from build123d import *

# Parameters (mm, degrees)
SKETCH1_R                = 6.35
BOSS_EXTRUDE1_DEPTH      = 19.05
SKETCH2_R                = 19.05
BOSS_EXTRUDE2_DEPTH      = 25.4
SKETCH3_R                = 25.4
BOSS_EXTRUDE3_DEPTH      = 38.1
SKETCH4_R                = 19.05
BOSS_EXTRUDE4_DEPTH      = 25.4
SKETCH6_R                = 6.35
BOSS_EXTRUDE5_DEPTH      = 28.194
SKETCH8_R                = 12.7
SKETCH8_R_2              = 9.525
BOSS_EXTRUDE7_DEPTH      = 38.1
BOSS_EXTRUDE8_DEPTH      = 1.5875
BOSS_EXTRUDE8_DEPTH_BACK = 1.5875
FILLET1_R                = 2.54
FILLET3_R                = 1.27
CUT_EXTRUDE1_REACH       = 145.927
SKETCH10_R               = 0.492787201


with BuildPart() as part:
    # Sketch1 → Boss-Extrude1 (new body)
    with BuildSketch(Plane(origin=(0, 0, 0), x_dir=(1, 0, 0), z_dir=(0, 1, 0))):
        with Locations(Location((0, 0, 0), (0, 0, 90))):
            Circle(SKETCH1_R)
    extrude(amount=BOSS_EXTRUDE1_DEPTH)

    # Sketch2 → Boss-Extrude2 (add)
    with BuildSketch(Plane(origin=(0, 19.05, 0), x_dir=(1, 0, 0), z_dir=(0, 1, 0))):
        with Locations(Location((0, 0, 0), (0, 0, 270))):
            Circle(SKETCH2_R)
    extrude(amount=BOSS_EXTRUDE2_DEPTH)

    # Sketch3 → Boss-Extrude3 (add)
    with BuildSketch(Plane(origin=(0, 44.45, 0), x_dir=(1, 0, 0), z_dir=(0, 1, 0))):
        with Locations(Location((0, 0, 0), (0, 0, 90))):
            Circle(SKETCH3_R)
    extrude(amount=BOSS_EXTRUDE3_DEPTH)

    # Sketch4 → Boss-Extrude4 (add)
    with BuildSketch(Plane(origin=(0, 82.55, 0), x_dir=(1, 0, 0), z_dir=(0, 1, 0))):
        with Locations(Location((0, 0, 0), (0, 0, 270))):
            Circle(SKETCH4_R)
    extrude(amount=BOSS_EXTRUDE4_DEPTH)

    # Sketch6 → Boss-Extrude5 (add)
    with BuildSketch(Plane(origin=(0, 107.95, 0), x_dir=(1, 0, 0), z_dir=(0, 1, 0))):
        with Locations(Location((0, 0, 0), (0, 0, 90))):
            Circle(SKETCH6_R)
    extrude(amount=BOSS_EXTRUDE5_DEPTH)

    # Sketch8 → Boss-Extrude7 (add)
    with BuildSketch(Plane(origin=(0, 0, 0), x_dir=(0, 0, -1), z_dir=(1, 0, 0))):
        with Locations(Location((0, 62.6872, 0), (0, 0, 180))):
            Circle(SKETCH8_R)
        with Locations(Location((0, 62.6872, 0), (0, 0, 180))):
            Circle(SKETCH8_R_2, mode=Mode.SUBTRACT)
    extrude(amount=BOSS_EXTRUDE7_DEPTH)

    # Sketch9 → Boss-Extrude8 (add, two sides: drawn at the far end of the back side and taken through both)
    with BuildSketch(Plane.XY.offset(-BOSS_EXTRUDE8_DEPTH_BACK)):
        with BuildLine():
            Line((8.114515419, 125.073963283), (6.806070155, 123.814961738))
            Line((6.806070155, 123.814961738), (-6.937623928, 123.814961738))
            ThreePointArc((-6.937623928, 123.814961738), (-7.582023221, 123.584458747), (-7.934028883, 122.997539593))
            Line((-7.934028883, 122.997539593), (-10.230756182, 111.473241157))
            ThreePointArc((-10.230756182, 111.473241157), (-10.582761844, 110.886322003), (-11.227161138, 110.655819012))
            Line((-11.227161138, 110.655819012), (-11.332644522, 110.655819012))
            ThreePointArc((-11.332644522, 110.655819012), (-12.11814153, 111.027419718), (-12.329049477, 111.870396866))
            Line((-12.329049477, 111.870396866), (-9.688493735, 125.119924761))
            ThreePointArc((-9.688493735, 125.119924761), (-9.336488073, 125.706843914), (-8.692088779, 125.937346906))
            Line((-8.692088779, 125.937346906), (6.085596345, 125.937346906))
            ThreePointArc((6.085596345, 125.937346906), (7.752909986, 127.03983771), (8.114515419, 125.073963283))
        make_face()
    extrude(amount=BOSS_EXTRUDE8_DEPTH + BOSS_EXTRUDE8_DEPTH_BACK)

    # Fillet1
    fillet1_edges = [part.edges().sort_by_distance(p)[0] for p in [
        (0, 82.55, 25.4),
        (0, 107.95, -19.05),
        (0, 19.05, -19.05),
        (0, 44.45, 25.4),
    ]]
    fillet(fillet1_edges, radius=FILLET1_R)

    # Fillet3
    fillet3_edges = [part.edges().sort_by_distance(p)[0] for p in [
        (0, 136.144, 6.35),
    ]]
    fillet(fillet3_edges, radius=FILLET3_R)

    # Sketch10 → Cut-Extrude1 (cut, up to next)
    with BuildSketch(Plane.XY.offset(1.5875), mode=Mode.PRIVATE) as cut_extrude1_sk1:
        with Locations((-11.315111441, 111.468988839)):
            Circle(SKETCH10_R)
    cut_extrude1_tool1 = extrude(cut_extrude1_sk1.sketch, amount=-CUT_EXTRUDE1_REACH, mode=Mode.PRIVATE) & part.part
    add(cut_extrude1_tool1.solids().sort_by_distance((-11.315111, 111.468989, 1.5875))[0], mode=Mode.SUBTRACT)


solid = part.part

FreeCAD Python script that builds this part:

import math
import FreeCAD as App
import Part
import Sketcher
from FreeCAD import Vector
Q = App.Units.Quantity


def edges_at(feature, points):
    """Names of the edges that pass closest to the given points."""
    edges = feature.Shape.Edges
    near = lambda p: min(range(len(edges)), key=lambda i: edges[i].distToShape(Part.Vertex(*p))[0])
    return sorted({f"Edge{near(p) + 1}" for p in points})

doc = App.newDocument("Part")
body = doc.addObject("PartDesign::Body", "Body")

# Sketch on XZ plane
sketch1 = body.newObject("Sketcher::SketchObject", "Sketch")
sketch1.AttachmentSupport = (doc.getObject("XZ_Plane"), [""])
sketch1.MapMode = "FlatFace"
sketch1.addGeometry(Part.Circle(Vector(0, 0, 0), Vector(0, 0, 1), 6), False)
sketch1.addConstraint([
    Sketcher.Constraint("Coincident", 0, 3, -1, 1),
    Sketcher.Constraint("Diameter", 0, Q("0.5 in")),
])
pad1 = body.newObject("PartDesign::Pad", "Pad")
pad1.Profile = sketch1
pad1.Length = Q("0.75 in")
pad1.Reversed = True

# Sketch on XZ plane
sketch2 = body.newObject("Sketcher::SketchObject", "Sketch001")
sketch2.AttachmentSupport = (doc.getObject("XZ_Plane"), [""])
sketch2.MapMode = "FlatFace"
sketch2.AttachmentOffset = App.Placement(Vector(0, 0, -0.75 * 25.4), App.Rotation())
sketch2.addGeometry(Part.Circle(Vector(0, 0, 0), Vector(0, 0, 1), 19), False)
sketch2.addConstraint([
    Sketcher.Constraint("Coincident", 0, 3, -1, 1),
    Sketcher.Constraint("Diameter", 0, Q("1.5 in")),
])
pad2 = body.newObject("PartDesign::Pad", "Pad001")
pad2.Profile = sketch2
pad2.Length = Q("1 in")
pad2.Reversed = True

# Sketch on XZ plane
sketch3 = body.newObject("Sketcher::SketchObject", "Sketch002")
sketch3.AttachmentSupport = (doc.getObject("XZ_Plane"), [""])
sketch3.MapMode = "FlatFace"
sketch3.AttachmentOffset = App.Placement(Vector(0, 0, -1.75 * 25.4), App.Rotation())
sketch3.addGeometry(Part.Circle(Vector(0, 0, 0), Vector(0, 0, 1), 25), False)
sketch3.addConstraint([
    Sketcher.Constraint("Coincident", 0, 3, -1, 1),
    Sketcher.Constraint("Diameter", 0, Q("2 in")),
])
pad3 = body.newObject("PartDesign::Pad", "Pad002")
pad3.Profile = sketch3
pad3.Length = Q("1.5 in")
pad3.Reversed = True

# Sketch on XZ plane
sketch4 = body.newObject("Sketcher::SketchObject", "Sketch003")
sketch4.AttachmentSupport = (doc.getObject("XZ_Plane"), [""])
sketch4.MapMode = "FlatFace"
sketch4.AttachmentOffset = App.Placement(Vector(0, 0, -3.25 * 25.4), App.Rotation())
sketch4.addGeometry(Part.Circle(Vector(0, 0, 0), Vector(0, 0, 1), 19), False)
sketch4.addConstraint([
    Sketcher.Constraint("Coincident", 0, 3, -1, 1),
    Sketcher.Constraint("Diameter", 0, Q("1.5 in")),
])
pad4 = body.newObject("PartDesign::Pad", "Pad003")
pad4.Profile = sketch4
pad4.Length = Q("1 in")
pad4.Reversed = True

# Sketch on XZ plane
sketch5 = body.newObject("Sketcher::SketchObject", "Sketch004")
sketch5.AttachmentSupport = (doc.getObject("XZ_Plane"), [""])
sketch5.MapMode = "FlatFace"
sketch5.AttachmentOffset = App.Placement(Vector(0, 0, -4.25 * 25.4), App.Rotation())
sketch5.addGeometry(Part.Circle(Vector(0, 0, 0), Vector(0, 0, 1), 6), False)
sketch5.addConstraint([
    Sketcher.Constraint("Coincident", 0, 3, -1, 1),
    Sketcher.Constraint("Diameter", 0, Q("0.5 in")),
])
pad5 = body.newObject("PartDesign::Pad", "Pad004")
pad5.Profile = sketch5
pad5.Length = Q("1.11 in")
pad5.Reversed = True

# Sketch on YZ plane
sketch6 = body.newObject("Sketcher::SketchObject", "Sketch005")
sketch6.AttachmentSupport = (doc.getObject("YZ_Plane"), [""])
sketch6.MapMode = "FlatFace"
sketch6.addGeometry([
    Part.Circle(Vector(63, 0, 0), Vector(0, 0, 1), 13),
    Part.Circle(Vector(63, 0, 0), Vector(0, 0, 1), 10),
], False)
sketch6.addConstraint([
    Sketcher.Constraint("Coincident", 1, 3, 0, 3),
    Sketcher.Constraint("PointOnObject", 0, 3, -1),
    Sketcher.Constraint("Diameter", 0, Q("1 in")),
    Sketcher.Constraint("Diameter", 1, Q("0.75 in")),
    Sketcher.Constraint("DistanceX", -1, 1, 0, 3, Q("2.468 in")),
])
pad6 = body.newObject("PartDesign::Pad", "Pad005")
pad6.Profile = sketch6
pad6.Length = Q("1.5 in")

# Sketch on XY plane
sketch7 = body.newObject("Sketcher::SketchObject", "Sketch006")
sketch7.AttachmentSupport = (doc.getObject("XY_Plane"), [""])
sketch7.MapMode = "FlatFace"
sketch7.addGeometry([
    Part.LineSegment(Vector(6.81, 123.81, 0), Vector(8.11, 125.07, 0)),  # 0
    Part.ArcOfCircle(Part.Circle(Vector(7.28, 125.94, 0), Vector(0, 0, 1), 1.2), math.radians(-46), math.radians(180)),  # 1
    Part.LineSegment(Vector(6.09, 125.94, 0), Vector(-8.69, 125.94, 0)),  # 2
    Part.ArcOfCircle(Part.Circle(Vector(-8.69, 124.92, 0), Vector(0, 0, 1), 1.02), math.radians(90), math.radians(169)),  # 3
    Part.LineSegment(Vector(-9.69, 125.12, 0), Vector(-12.33, 111.87, 0)),  # 4
    Part.ArcOfCircle(Part.Circle(Vector(-11.33, 111.67, 0), Vector(0, 0, 1), 1.02), math.radians(169), math.radians(270)),  # 5
    Part.LineSegment(Vector(-11.33, 110.66, 0), Vector(-11.23, 110.66, 0)),  # 6
    Part.ArcOfCircle(Part.Circle(Vector(-11.23, 111.67, 0), Vector(0, 0, 1), 1.02), math.radians(-90), math.radians(-11)),  # 7
    Part.LineSegment(Vector(-10.23, 111.47, 0), Vector(-7.93, 123, 0)),  # 8
    Part.ArcOfCircle(Part.Circle(Vector(-6.94, 122.8, 0), Vector(0, 0, 1), 1.02), math.radians(90), math.radians(169)),  # 9
    Part.LineSegment(Vector(-6.94, 123.81, 0), Vector(6.81, 123.81, 0)),  # 10
], False)
sketch7.addConstraint([
    Sketcher.Constraint("Tangent", 0, 2, 1, 1),
    Sketcher.Constraint("Coincident", 1, 2, 2, 1),
    Sketcher.Constraint("Tangent", 2, 2, 3, 1),
    Sketcher.Constraint("Tangent", 3, 2, 4, 1),
    Sketcher.Constraint("Tangent", 4, 2, 5, 1),
    Sketcher.Constraint("Tangent", 5, 2, 6, 1),
    Sketcher.Constraint("Tangent", 6, 2, 7, 1),
    Sketcher.Constraint("Tangent", 7, 2, 8, 1),
    Sketcher.Constraint("Tangent", 8, 2, 9, 2),
    Sketcher.Constraint("Tangent", 9, 1, 10, 1),
    Sketcher.Constraint("Coincident", 10, 2, 0, 1),
    Sketcher.Constraint("Horizontal", 2),
    Sketcher.Constraint("Horizontal", 6),
    Sketcher.Constraint("Horizontal", 10),
    Sketcher.Constraint("Equal", 3, 5),
    Sketcher.Constraint("Equal", 5, 7),
    Sketcher.Constraint("Equal", 7, 9),
    Sketcher.Constraint("Parallel", 4, 8),
    Sketcher.Constraint("Radius", 3, Q("0.04 in")),
    Sketcher.Constraint("DistanceY", 3, 3, 1, 3, Q("0.04 in")),
    Sketcher.Constraint("Radius", 1, 1.198161),
    Sketcher.Constraint("DistanceX", 5, 3, 1, 3, 18.616402),
    Sketcher.Constraint("DistanceY", 9, 3, 0, 2, 2.275002),
    Sketcher.Constraint("DistanceY", 7, 2, 8, 2, 11.524298),
    Sketcher.Constraint("Distance", 4, 13.51009),
    Sketcher.Constraint("DistanceX", 2, 2, 2, 1, 14.777685),
    Sketcher.Constraint("DistanceX", 6, 1, 6, 2, 0.105483),
    Sketcher.Constraint("DistanceX", 3, 3, -1, 1, 8.692089),
    Sketcher.Constraint("DistanceY", -1, 1, 5, 3, 111.671819),
])
pad7 = body.newObject("PartDesign::Pad", "Pad006")
pad7.Profile = sketch7
pad7.Type = "TwoLengths"
pad7.Length = Q("0.0625 in")
pad7.Length2 = Q("0.0625 in")
doc.recompute()

fillet = body.newObject("PartDesign::Fillet", "Fillet")
fillet.Base = (pad7, edges_at(pad7, [
    (0, 82.55, 25.4),
    (0, 107.95, -19.05),
    (0, 19.05, -19.05),
    (0, 44.45, 25.4),
]))
fillet.Radius = Q("0.1 in")
doc.recompute()

fillet2 = body.newObject("PartDesign::Fillet", "Fillet001")
fillet2.Base = (fillet, edges_at(fillet, [(0, 136.144, 6.35)]))
fillet2.Radius = Q("0.05 in")

# Sketch on XY plane
sketch8 = body.newObject("Sketcher::SketchObject", "Sketch007")
sketch8.AttachmentSupport = (doc.getObject("XY_Plane"), [""])
sketch8.MapMode = "FlatFace"
sketch8.AttachmentOffset = App.Placement(Vector(0, 0, 0.0625 * 25.4), App.Rotation())
sketch8.addGeometry(Part.Circle(Vector(-11.32, 111.47, 0), Vector(0, 0, 1), 0.49), False)
sketch8.addConstraint([
    Sketcher.Constraint("Diameter", 0, 0.985574),
    Sketcher.Constraint("DistanceX", 0, 3, -1, 1, 11.315111),
    Sketcher.Constraint("DistanceY", -1, 1, 0, 3, 111.468989),
])
pocket1 = body.newObject("PartDesign::Pocket", "Pocket")
pocket1.Profile = sketch8
pocket1.Type = "UpToFirst"

doc.recompute()
